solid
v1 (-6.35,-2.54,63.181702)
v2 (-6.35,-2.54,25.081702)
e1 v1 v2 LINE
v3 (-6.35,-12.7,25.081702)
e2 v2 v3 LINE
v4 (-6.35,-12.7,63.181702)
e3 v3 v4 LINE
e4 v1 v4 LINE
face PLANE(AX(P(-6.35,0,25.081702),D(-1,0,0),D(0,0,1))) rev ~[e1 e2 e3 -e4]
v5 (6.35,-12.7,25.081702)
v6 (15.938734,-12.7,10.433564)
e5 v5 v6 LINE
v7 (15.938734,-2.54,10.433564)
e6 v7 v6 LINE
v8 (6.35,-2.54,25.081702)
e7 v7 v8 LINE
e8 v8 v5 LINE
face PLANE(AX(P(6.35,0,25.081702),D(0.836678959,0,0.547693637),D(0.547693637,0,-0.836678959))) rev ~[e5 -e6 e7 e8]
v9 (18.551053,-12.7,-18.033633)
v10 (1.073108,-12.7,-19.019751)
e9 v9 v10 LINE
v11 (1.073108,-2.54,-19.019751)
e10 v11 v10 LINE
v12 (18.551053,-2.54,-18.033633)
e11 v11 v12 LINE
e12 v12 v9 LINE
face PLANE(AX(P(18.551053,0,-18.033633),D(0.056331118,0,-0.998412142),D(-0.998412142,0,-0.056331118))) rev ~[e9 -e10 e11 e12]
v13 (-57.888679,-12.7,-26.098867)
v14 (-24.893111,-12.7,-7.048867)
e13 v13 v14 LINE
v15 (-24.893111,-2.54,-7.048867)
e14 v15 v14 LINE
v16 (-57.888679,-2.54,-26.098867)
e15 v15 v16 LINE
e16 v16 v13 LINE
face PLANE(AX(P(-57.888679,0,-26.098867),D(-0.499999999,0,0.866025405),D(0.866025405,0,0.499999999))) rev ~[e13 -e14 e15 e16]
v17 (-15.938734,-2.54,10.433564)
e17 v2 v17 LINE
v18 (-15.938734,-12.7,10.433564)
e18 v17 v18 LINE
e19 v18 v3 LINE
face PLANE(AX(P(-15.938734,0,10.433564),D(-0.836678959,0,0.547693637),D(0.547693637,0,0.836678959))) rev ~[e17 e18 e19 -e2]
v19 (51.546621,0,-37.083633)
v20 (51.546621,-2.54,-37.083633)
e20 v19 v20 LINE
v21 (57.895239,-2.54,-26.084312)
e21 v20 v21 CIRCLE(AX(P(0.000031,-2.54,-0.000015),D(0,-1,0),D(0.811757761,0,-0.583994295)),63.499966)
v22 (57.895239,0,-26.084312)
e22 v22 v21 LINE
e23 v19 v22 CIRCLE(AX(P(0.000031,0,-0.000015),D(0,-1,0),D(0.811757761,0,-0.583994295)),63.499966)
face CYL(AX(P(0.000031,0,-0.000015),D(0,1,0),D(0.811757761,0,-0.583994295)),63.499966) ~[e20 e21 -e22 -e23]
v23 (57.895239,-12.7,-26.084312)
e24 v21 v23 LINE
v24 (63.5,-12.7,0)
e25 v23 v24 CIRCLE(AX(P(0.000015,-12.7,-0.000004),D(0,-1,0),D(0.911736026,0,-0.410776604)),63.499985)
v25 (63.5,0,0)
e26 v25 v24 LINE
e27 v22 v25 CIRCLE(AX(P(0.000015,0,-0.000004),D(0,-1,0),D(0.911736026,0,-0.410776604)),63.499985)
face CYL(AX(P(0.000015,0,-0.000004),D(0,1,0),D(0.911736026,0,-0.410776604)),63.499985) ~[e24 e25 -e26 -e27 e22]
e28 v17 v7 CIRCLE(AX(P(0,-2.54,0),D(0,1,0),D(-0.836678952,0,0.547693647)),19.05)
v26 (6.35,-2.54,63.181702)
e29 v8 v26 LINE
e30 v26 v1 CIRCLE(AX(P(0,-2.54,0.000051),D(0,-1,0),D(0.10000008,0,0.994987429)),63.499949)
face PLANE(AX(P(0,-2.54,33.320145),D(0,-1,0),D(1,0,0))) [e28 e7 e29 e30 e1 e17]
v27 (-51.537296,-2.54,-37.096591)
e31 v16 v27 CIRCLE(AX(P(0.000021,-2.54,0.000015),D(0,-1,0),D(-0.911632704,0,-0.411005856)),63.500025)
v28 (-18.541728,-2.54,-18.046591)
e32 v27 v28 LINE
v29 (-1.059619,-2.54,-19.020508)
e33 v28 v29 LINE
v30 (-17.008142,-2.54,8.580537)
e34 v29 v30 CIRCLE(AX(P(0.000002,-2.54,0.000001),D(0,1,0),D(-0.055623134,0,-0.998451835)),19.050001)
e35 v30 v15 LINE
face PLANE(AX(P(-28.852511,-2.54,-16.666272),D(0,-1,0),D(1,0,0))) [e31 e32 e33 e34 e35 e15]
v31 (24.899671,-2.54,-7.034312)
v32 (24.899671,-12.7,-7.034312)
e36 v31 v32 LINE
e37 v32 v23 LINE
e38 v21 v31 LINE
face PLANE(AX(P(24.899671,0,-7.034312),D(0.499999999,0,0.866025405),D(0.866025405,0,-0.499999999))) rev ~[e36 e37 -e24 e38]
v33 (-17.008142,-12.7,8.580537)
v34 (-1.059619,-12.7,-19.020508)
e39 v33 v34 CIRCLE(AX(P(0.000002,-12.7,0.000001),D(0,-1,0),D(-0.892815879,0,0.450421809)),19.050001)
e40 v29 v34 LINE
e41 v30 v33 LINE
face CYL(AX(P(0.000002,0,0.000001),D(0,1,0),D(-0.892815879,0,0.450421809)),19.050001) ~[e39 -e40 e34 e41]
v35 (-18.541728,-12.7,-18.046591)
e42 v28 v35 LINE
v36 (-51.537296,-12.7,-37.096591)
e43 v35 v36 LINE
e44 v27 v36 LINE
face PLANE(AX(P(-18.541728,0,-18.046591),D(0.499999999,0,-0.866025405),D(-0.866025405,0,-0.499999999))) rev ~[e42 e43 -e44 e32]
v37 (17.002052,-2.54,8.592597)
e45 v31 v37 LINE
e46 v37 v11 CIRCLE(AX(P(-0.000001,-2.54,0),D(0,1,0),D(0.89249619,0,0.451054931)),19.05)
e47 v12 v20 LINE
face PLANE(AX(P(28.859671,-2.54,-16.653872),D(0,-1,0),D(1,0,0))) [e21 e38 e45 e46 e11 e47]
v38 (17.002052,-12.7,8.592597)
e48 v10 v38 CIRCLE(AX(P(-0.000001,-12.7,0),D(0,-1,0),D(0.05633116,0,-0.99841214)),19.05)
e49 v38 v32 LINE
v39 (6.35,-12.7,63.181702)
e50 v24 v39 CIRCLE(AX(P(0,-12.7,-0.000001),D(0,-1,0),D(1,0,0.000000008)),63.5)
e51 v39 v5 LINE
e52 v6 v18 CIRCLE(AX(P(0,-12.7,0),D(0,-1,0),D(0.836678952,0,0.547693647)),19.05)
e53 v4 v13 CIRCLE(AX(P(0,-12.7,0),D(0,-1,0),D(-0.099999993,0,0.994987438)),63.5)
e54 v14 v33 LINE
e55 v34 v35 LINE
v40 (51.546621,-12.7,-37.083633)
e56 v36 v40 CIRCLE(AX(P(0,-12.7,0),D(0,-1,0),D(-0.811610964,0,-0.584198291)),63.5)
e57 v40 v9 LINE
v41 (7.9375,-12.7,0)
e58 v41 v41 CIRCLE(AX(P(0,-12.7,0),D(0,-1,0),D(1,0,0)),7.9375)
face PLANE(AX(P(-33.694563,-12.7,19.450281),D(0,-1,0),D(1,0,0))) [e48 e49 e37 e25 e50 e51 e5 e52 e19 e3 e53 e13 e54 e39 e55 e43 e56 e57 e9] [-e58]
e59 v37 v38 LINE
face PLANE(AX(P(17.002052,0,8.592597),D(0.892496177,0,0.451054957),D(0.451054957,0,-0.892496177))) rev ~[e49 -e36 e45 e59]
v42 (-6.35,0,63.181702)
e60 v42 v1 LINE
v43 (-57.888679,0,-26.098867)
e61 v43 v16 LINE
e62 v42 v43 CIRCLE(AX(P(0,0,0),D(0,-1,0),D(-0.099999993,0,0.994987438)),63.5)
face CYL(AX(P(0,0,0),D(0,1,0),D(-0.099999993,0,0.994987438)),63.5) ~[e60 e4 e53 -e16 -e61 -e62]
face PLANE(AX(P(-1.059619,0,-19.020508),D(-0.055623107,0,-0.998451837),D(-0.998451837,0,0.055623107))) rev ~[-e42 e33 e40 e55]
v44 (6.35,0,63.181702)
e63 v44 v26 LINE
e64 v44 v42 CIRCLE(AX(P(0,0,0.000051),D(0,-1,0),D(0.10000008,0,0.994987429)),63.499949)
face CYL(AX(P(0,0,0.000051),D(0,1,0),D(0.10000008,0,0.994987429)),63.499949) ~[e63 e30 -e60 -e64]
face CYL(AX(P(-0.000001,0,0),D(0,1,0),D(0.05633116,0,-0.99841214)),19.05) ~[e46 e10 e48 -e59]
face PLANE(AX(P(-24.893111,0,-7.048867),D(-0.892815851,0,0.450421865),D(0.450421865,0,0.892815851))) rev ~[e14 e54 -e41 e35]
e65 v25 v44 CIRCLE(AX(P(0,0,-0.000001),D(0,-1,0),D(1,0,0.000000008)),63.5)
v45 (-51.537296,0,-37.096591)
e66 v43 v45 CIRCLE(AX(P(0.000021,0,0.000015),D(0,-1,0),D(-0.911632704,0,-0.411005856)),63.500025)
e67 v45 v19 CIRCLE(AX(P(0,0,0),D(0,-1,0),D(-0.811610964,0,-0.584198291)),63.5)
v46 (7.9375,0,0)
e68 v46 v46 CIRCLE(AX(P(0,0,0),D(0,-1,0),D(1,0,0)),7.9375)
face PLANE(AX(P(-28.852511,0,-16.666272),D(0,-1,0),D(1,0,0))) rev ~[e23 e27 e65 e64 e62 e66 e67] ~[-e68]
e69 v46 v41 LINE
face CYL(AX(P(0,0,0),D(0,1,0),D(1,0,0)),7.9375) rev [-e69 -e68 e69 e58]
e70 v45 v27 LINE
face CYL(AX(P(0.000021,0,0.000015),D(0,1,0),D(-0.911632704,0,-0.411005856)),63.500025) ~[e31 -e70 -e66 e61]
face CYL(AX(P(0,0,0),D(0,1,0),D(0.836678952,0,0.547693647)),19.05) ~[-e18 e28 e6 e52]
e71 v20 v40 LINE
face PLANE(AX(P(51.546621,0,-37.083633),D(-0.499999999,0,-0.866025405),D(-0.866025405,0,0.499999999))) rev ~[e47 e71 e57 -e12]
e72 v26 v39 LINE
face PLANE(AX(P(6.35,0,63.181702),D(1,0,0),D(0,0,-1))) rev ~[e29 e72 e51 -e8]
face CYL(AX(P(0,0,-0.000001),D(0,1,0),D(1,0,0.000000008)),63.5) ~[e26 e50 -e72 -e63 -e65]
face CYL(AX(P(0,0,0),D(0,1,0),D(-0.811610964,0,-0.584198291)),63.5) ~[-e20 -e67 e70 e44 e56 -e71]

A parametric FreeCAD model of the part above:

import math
import FreeCAD as App
import Part
import Sketcher
from FreeCAD import Vector
Q = App.Units.Quantity

doc = App.newDocument("Part")
body = doc.addObject("PartDesign::Body", "Body")

# Sketch on XZ plane
sketch1 = doc.addObject("Sketcher::SketchObject", "Sketch")
body.addObject(sketch1)
sketch1.AttachmentSupport = (doc.XZ_Plane, [""])
sketch1.MapMode = "FlatFace"
sketch1.addGeometry(Part.LineSegment(Vector(-6, 25, 0), Vector(-6, 63, 0)), False)
sketch1.addGeometry(Part.ArcOfCircle(Part.Circle(Vector(0, 0, 0), Vector(0, 0, 1), 63), math.radians(96), math.radians(204)), False)
sketch1.addGeometry(Part.LineSegment(Vector(-58, -26, 0), Vector(-25, -7, 0)), False)
sketch1.addGeometry(Part.LineSegment(Vector(-25, -7, 0), Vector(-17, 9, 0)), False)
sketch1.addGeometry(Part.ArcOfCircle(Part.Circle(Vector(0, 0, 0), Vector(0, 0, 1), 19), math.radians(153), math.radians(267)), False)
sketch1.addGeometry(Part.LineSegment(Vector(-1, -19, 0), Vector(-19, -18, 0)), False)
sketch1.addGeometry(Part.LineSegment(Vector(-19, -18, 0), Vector(-52, -37, 0)), False)
sketch1.addGeometry(Part.ArcOfCircle(Part.Circle(Vector(0, 0, 0), Vector(0, 0, 1), 63), math.radians(-144), math.radians(-36)), False)
sketch1.addGeometry(Part.LineSegment(Vector(52, -37, 0), Vector(19, -18, 0)), False)
sketch1.addGeometry(Part.LineSegment(Vector(19, -18, 0), Vector(1, -19, 0)), False)
sketch1.addGeometry(Part.ArcOfCircle(Part.Circle(Vector(0, 0, 0), Vector(0, 0, 1), 19), math.radians(-87), math.radians(27)), False)
sketch1.addGeometry(Part.LineSegment(Vector(17, 9, 0), Vector(25, -7, 0)), False)
sketch1.addGeometry(Part.LineSegment(Vector(25, -7, 0), Vector(58, -26, 0)), False)
sketch1.addGeometry(Part.ArcOfCircle(Part.Circle(Vector(0, 0, 0), Vector(0, 0, 1), 63), math.radians(-24), math.radians(0)), False)
sketch1.addGeometry(Part.ArcOfCircle(Part.Circle(Vector(0, 0, 0), Vector(0, 0, 1), 64), math.radians(0), math.radians(84)), False)
sketch1.addGeometry(Part.LineSegment(Vector(6, 63, 0), Vector(6, 25, 0)), False)
sketch1.addGeometry(Part.LineSegment(Vector(6, 25, 0), Vector(16, 10, 0)), False)
sketch1.addGeometry(Part.ArcOfCircle(Part.Circle(Vector(0, 0, 0), Vector(0, 0, 1), 19), math.radians(33), math.radians(147)), False)
sketch1.addGeometry(Part.LineSegment(Vector(-16, 10, 0), Vector(-6, 25, 0)), False)
sketch1.addGeometry(Part.Circle(Vector(0, 0, 0), Vector(0, 0, 1), 8), False)
sketch1.addConstraint(Sketcher.Constraint("Coincident", 0, 2, 1, 1))
sketch1.addConstraint(Sketcher.Constraint("Coincident", 1, 2, 2, 1))
sketch1.addConstraint(Sketcher.Constraint("Coincident", 2, 2, 3, 1))
sketch1.addConstraint(Sketcher.Constraint("Tangent", 3, 2, 4, 1))
sketch1.addConstraint(Sketcher.Constraint("Tangent", 4, 2, 5, 1))
sketch1.addConstraint(Sketcher.Constraint("Coincident", 5, 2, 6, 1))
sketch1.addConstraint(Sketcher.Constraint("Coincident", 6, 2, 7, 1))
sketch1.addConstraint(Sketcher.Constraint("Coincident", 7, 2, 8, 1))
sketch1.addConstraint(Sketcher.Constraint("Coincident", 8, 2, 9, 1))
sketch1.addConstraint(Sketcher.Constraint("Tangent", 9, 2, 10, 1))
sketch1.addConstraint(Sketcher.Constraint("Tangent", 10, 2, 11, 1))
sketch1.addConstraint(Sketcher.Constraint("Coincident", 11, 2, 12, 1))
sketch1.addConstraint(Sketcher.Constraint("Coincident", 12, 2, 13, 1))
sketch1.addConstraint(Sketcher.Constraint("Tangent", 13, 2, 14, 1))
sketch1.addConstraint(Sketcher.Constraint("Coincident", 14, 2, 15, 1))
sketch1.addConstraint(Sketcher.Constraint("Coincident", 15, 2, 16, 1))
sketch1.addConstraint(Sketcher.Constraint("Tangent", 16, 2, 17, 1))
sketch1.addConstraint(Sketcher.Constraint("Tangent", 17, 2, 18, 1))
sketch1.addConstraint(Sketcher.Constraint("Coincident", 18, 2, 0, 1))
sketch1.addConstraint(Sketcher.Constraint("Vertical", 0))
sketch1.addConstraint(Sketcher.Constraint("Vertical", 15))
sketch1.addConstraint(Sketcher.Constraint("Coincident", 1, 3, -1, 1))
sketch1.addConstraint(Sketcher.Constraint("Coincident", 4, 3, -1, 1))
sketch1.addConstraint(Sketcher.Constraint("Coincident", 7, 3, -1, 1))
sketch1.addConstraint(Sketcher.Constraint("Coincident", 10, 3, -1, 1))
sketch1.addConstraint(Sketcher.Constraint("Coincident", 14, 3, -1, 1))
sketch1.addConstraint(Sketcher.Constraint("Coincident", 17, 3, -1, 1))
sketch1.addConstraint(Sketcher.Constraint("Coincident", 19, 3, -1, 1))
sketch1.addConstraint(Sketcher.Constraint("Equal", 1, 7))
sketch1.addConstraint(Sketcher.Constraint("Equal", 4, 10))
sketch1.addConstraint(Sketcher.Constraint("Equal", 7, 14))
sketch1.addConstraint(Sketcher.Constraint("Equal", 10, 17))
sketch1.addConstraint(Sketcher.Constraint("Symmetric", 15, 2, 18, 2, -2))
sketch1.addConstraint(Sketcher.Constraint("PointOnObject", 13, 2, -1))
sketch1.addConstraint(Sketcher.Constraint("Parallel", 2, 6))
sketch1.addConstraint(Sketcher.Constraint("Parallel", 8, 12))
sketch1.addConstraint(Sketcher.Constraint("Equal", 2, 6))
sketch1.addConstraint(Sketcher.Constraint("Equal", 6, 8))
sketch1.addConstraint(Sketcher.Constraint("Equal", 3, 9))
sketch1.addConstraint(Sketcher.Constraint("Equal", 5, 11))
sketch1.addConstraint(Sketcher.Constraint("Equal", 8, 12))
sketch1.addConstraint(Sketcher.Constraint("Radius", 1, Q("2.5 in")))
sketch1.addConstraint(Sketcher.Constraint("Radius", 4, Q("0.7500001 in")))
sketch1.addConstraint(Sketcher.Constraint("Diameter", 19, Q("0.625 in")))
sketch1.addConstraint(Sketcher.Constraint("DistanceY", 0, 1, 0, 2, Q("1.5 in")))
sketch1.addConstraint(Sketcher.Constraint("Angle", 2, Q("30 deg")))
sketch1.addConstraint(Sketcher.Constraint("Angle", 8, Q("150 deg")))
sketch1.addConstraint(Sketcher.Constraint("Distance", 2, Q("1.5 in")))
sketch1.addConstraint(Sketcher.Constraint("DistanceX", 0, 2, 14, 2, Q("0.5 in")))
sketch1.addConstraint(Sketcher.Constraint("Radius", 13, Q("63.499985 mm")))
sketch1.addConstraint(Sketcher.Constraint("DistanceY", 13, 3, 10, 2, Q("8.592601 mm")))
sketch1.addConstraint(Sketcher.Constraint("Distance", 9, Q("17.505742 mm")))
pad1 = doc.addObject("PartDesign::Pad", "Pad")
body.addObject(pad1)
pad1.Profile = sketch1
pad1.Length = Q("0.5 in")

# Sketch on XZ plane
sketch2 = doc.addObject("Sketcher::SketchObject", "Sketch001")
body.addObject(sketch2)
sketch2.AttachmentSupport = (doc.XZ_Plane, [""])
sketch2.MapMode = "FlatFace"
sketch2.addGeometry(Part.LineSegment(Vector(-24.893111, -7.048867, 0), Vector(-57.888679, -26.098867, 0)), False)
sketch2.addGeometry(Part.ArcOfCircle(Part.Circle(Vector(0.000021, 0.000015, 0), Vector(0, 0, 1), 63.500025), math.radians(-155.731963), math.radians(-144.253627)), False)
sketch2.addGeometry(Part.LineSegment(Vector(-51.537296, -37.096591, 0), Vector(-18.541728, -18.046591, 0)), False)
sketch2.addGeometry(Part.LineSegment(Vector(-18.541728, -18.046591, 0), Vector(-1.059619, -19.020508, 0)), False)
sketch2.addGeometry(Part.ArcOfCircle(Part.Circle(Vector(0.000002, 0.000001, 0), Vector(0, 0, 1), 19.050001), math.radians(153.22925), math.radians(266.811384)), False)
sketch2.addGeometry(Part.LineSegment(Vector(-17.008142, 8.580537, 0), Vector(-24.893111, -7.048867, 0)), False)
sketch2.addGeometry(Part.ArcOfCircle(Part.Circle(Vector(0.000031, -0.000015, 0), Vector(0, 0, 1), 63.499966), math.radians(-35.731973), math.radians(-24.253626)), False)
sketch2.addGeometry(Part.LineSegment(Vector(57.895239, -26.084312, 0), Vector(24.899671, -7.034312, 0)), False)
sketch2.addGeometry(Part.LineSegment(Vector(24.899671, -7.034312, 0), Vector(17.002052, 8.592597, 0)), False)
sketch2.addGeometry(Part.ArcOfCircle(Part.Circle(Vector(-0.000001, 0, 0), Vector(0, 0, 1), 19.05), math.radians(-86.770753), math.radians(26.811387)), False)
sketch2.addGeometry(Part.LineSegment(Vector(1.073108, -19.019751, 0), Vector(18.551053, -18.033633, 0)), False)
sketch2.addGeometry(Part.LineSegment(Vector(18.551053, -18.033633, 0), Vector(51.546621, -37.083633, 0)), False)
sketch2.addGeometry(Part.LineSegment(Vector(6.35, 25.081702, 0), Vector(6.35, 63.181702, 0)), False)
sketch2.addGeometry(Part.ArcOfCircle(Part.Circle(Vector(0, 0.000051, 0), Vector(0, 0, 1), 63.499949), math.radians(84.260825), math.radians(95.739175)), False)
sketch2.addGeometry(Part.LineSegment(Vector(-6.35, 63.181702, 0), Vector(-6.35, 25.081702, 0)), False)
sketch2.addGeometry(Part.LineSegment(Vector(-6.35, 25.081702, 0), Vector(-15.938734, 10.433564, 0)), False)
sketch2.addGeometry(Part.ArcOfCircle(Part.Circle(Vector(0, 0, 0), Vector(0, 0, 1), 19.05), math.radians(33.208931), math.radians(146.791069)), False)
sketch2.addGeometry(Part.LineSegment(Vector(15.938734, 10.433564, 0), Vector(6.35, 25.081702, 0)), False)
sketch2.addConstraint(Sketcher.Constraint("Coincident", 0, 2, 1, 1))
sketch2.addConstraint(Sketcher.Constraint("Coincident", 1, 2, 2, 1))
sketch2.addConstraint(Sketcher.Constraint("Coincident", 2, 2, 3, 1))
sketch2.addConstraint(Sketcher.Constraint("Coincident", 3, 2, 4, 2))
sketch2.addConstraint(Sketcher.Constraint("Coincident", 4, 1, 5, 1))
sketch2.addConstraint(Sketcher.Constraint("Coincident", 5, 2, 0, 1))
sketch2.addConstraint(Sketcher.Constraint("Coincident", 6, 2, 7, 1))
sketch2.addConstraint(Sketcher.Constraint("Coincident", 7, 2, 8, 1))
sketch2.addConstraint(Sketcher.Constraint("Coincident", 8, 2, 9, 2))
sketch2.addConstraint(Sketcher.Constraint("Coincident", 9, 1, 10, 1))
sketch2.addConstraint(Sketcher.Constraint("Coincident", 10, 2, 11, 1))
sketch2.addConstraint(Sketcher.Constraint("Coincident", 11, 2, 6, 1))
sketch2.addConstraint(Sketcher.Constraint("Coincident", 12, 2, 13, 1))
sketch2.addConstraint(Sketcher.Constraint("Coincident", 13, 2, 14, 1))
sketch2.addConstraint(Sketcher.Constraint("Coincident", 14, 2, 15, 1))
sketch2.addConstraint(Sketcher.Constraint("Coincident", 15, 2, 16, 2))
sketch2.addConstraint(Sketcher.Constraint("Coincident", 16, 1, 17, 1))
sketch2.addConstraint(Sketcher.Constraint("Coincident", 17, 2, 12, 1))
sketch2.addConstraint(Sketcher.Constraint("Vertical", 12))
sketch2.addConstraint(Sketcher.Constraint("Vertical", 14))
sketch2.addConstraint(Sketcher.Constraint("Coincident", 4, 3, -1, 1))
sketch2.addConstraint(Sketcher.Constraint("Coincident", 9, 3, -1, 1))
sketch2.addConstraint(Sketcher.Constraint("Coincident", 16, 3, -1, 1))
sketch2.addConstraint(Sketcher.Constraint("PointOnObject", 13, 3, -2))
sketch2.addConstraint(Sketcher.Constraint("Radius", 4, Q("0.7500001 in")))
sketch2.addConstraint(Sketcher.Constraint("Radius", 9, Q("0.75 in")))
sketch2.addConstraint(Sketcher.Constraint("Radius", 16, Q("0.75 in")))
sketch2.addConstraint(Sketcher.Constraint("DistanceY", 12, 1, 12, 2, Q("1.5 in")))
sketch2.addConstraint(Sketcher.Constraint("DistanceY", 14, 2, 14, 1, Q("1.5 in")))
sketch2.addConstraint(Sketcher.Constraint("Distance", 0, Q("1.5 in")))
sketch2.addConstraint(Sketcher.Constraint("Distance", 2, Q("1.5 in")))
sketch2.addConstraint(Sketcher.Constraint("Distance", 7, Q("1.5 in")))
sketch2.addConstraint(Sketcher.Constraint("Distance", 11, Q("1.5 in")))
sketch2.addConstraint(Sketcher.Constraint("DistanceX", 13, 2, 12, 2, Q("0.5 in")))
sketch2.addConstraint(Sketcher.Constraint("DistanceX", -1, 1, 12, 2, Q("0.25 in")))
sketch2.addConstraint(Sketcher.Constraint("DistanceY", 11, 2, 10, 2, Q("0.75 in")))
sketch2.addConstraint(Sketcher.Constraint("Radius", 13, Q("63.499949 mm")))
sketch2.addConstraint(Sketcher.Constraint("Radius", 1, Q("63.500025 mm")))
sketch2.addConstraint(Sketcher.Constraint("Radius", 6, Q("63.499966 mm")))
sketch2.addConstraint(Sketcher.Constraint("DistanceY", -1, 1, 14, 2, Q("25.081702 mm")))
sketch2.addConstraint(Sketcher.Constraint("Distance", 10, Q("17.505742 mm")))
sketch2.addConstraint(Sketcher.Constraint("DistanceX", 0, 2, -1, 1, Q("57.888679 mm")))
sketch2.addConstraint(Sketcher.Constraint("DistanceY", 1, 2, -1, 1, Q("37.096591 mm")))
sketch2.addConstraint(Sketcher.Constraint("DistanceY", 2, 2, -1, 1, Q("18.046591 mm")))
sketch2.addConstraint(Sketcher.Constraint("DistanceX", 3, 2, -1, 1, Q("1.059619 mm")))
sketch2.addConstraint(Sketcher.Constraint("DistanceX", 5, 2, -1, 1, Q("24.893111 mm")))
sketch2.addConstraint(Sketcher.Constraint("DistanceX", -1, 1, 6, 2, Q("57.895239 mm")))
sketch2.addConstraint(Sketcher.Constraint("DistanceX", -1, 1, 7, 2, Q("24.899671 mm")))
sketch2.addConstraint(Sketcher.Constraint("DistanceX", -1, 1, 8, 2, Q("17.002052 mm")))
sketch2.addConstraint(Sketcher.Constraint("DistanceX", -1, 1, 9, 1, Q("1.073108 mm")))
sketch2.addConstraint(Sketcher.Constraint("DistanceX", -1, 1, 11, 2, Q("51.546621 mm")))
sketch2.addConstraint(Sketcher.Constraint("DistanceX", 0, 2, 6, 3, Q("57.88871 mm")))
sketch2.addConstraint(Sketcher.Constraint("DistanceX", 2, 2, 4, 3, Q("18.54173 mm")))
sketch2.addConstraint(Sketcher.Constraint("DistanceX", 2, 2, 1, 3, Q("18.541749 mm")))
sketch2.addConstraint(Sketcher.Constraint("DistanceX", 4, 1, 9, 3, Q("17.008141 mm")))
sketch2.addConstraint(Sketcher.Constraint("DistanceX", 4, 1, 15, 2, Q("1.069408 mm")))
sketch2.addConstraint(Sketcher.Constraint("DistanceX", 16, 1, 8, 2, Q("1.063318 mm")))
pad2 = doc.addObject("PartDesign::Pad", "Pad001")
body.addObject(pad2)
pad2.Profile = sketch2
pad2.Length = Q("0.1 in")

doc.recompute()
